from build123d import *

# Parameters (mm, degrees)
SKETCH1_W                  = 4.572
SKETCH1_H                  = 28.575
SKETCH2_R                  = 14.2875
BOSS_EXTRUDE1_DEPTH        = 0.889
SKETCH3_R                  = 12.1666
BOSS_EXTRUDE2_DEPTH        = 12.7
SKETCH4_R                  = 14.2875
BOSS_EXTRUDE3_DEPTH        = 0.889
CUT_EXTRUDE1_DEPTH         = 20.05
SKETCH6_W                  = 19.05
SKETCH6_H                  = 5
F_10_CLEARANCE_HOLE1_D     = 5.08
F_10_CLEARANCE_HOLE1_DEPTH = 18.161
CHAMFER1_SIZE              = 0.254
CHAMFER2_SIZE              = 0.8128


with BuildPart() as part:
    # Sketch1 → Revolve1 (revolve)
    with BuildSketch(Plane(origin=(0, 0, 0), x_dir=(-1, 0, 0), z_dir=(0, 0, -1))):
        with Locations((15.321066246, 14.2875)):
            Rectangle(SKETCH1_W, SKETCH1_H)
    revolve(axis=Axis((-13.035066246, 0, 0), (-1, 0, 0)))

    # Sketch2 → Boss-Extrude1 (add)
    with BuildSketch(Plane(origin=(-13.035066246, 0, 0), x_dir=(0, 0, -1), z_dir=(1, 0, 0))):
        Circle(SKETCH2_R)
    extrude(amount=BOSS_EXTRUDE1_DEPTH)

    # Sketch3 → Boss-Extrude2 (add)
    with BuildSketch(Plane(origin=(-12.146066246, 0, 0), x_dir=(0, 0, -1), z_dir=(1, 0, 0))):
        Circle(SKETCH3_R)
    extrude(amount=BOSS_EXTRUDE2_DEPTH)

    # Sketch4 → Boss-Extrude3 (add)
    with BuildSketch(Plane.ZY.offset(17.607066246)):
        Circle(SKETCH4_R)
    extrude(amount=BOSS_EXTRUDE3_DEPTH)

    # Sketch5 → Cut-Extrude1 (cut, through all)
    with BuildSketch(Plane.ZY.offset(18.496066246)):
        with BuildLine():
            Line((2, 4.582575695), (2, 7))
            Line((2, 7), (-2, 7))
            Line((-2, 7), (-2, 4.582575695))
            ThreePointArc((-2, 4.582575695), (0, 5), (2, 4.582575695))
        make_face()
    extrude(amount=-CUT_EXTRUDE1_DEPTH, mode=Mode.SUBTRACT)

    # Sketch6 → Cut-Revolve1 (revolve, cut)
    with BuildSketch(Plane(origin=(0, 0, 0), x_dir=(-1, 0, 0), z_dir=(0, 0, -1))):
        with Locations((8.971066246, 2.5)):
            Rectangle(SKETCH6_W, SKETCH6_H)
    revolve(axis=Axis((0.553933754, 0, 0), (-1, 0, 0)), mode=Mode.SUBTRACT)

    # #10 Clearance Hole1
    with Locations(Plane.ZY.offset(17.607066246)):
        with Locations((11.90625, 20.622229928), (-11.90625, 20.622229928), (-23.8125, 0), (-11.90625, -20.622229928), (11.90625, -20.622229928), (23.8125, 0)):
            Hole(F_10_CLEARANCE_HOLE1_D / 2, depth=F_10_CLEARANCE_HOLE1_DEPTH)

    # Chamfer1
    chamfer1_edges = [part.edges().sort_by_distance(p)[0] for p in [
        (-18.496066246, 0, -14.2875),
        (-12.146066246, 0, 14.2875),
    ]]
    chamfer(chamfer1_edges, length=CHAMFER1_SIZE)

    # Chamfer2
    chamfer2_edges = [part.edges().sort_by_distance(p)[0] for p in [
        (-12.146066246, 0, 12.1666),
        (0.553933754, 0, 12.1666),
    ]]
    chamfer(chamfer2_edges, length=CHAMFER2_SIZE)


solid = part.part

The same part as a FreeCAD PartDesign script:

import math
import FreeCAD as App
import Part
import Sketcher
from FreeCAD import Vector
Q = App.Units.Quantity


def edges_at(feature, points):
    """Names of the edges that pass closest to the given points."""
    edges = feature.Shape.Edges
    near = lambda p: min(range(len(edges)), key=lambda i: edges[i].distToShape(Part.Vertex(*p))[0])
    return sorted({f"Edge{near(p) + 1}" for p in points})

doc = App.newDocument("Part")
body = doc.addObject("PartDesign::Body", "Body")

# Sketch on XY plane
sketch1 = doc.addObject("Sketcher::SketchObject", "Sketch")
body.addObject(sketch1)
sketch1.AttachmentSupport = (doc.XY_Plane, [""])
sketch1.MapMode = "FlatFace"
sketch1.addGeometry([
    Part.LineSegment(Vector(-13, 28.6, 0), Vector(-13, 0, 0)),
    Part.LineSegment(Vector(-13, 0, 0), Vector(-17.6, 0, 0)),
    Part.LineSegment(Vector(-17.6, 0, 0), Vector(-17.6, 28.6, 0)),
    Part.LineSegment(Vector(-17.6, 28.6, 0), Vector(-13, 28.6, 0)),
], False)
sketch1.addConstraint([
    Sketcher.Constraint("Coincident", 0, 2, 1, 1),
    Sketcher.Constraint("Coincident", 1, 2, 2, 1),
    Sketcher.Constraint("Coincident", 2, 2, 3, 1),
    Sketcher.Constraint("Coincident", 3, 2, 0, 1),
    Sketcher.Constraint("Vertical", 0),
    Sketcher.Constraint("Horizontal", 1),
    Sketcher.Constraint("Vertical", 2),
    Sketcher.Constraint("Horizontal", 3),
    Sketcher.Constraint("PointOnObject", 0, 2, -1),
    Sketcher.Constraint("DistanceX", 1, 2, 1, 1, Q("0.18 in")),
    Sketcher.Constraint("DistanceY", 0, 2, 0, 1, Q("1.125 in")),
    Sketcher.Constraint("DistanceX", 0, 2, -1, 1, 13.035066),
])
revolution = doc.addObject("PartDesign::Revolution", "Revolution")
body.addObject(revolution)
revolution.Profile = sketch1
revolution.ReferenceAxis = (sketch1, ["H_Axis"])
revolution.Angle = 360

# Sketch on YZ plane
sketch2 = doc.addObject("Sketcher::SketchObject", "Sketch001")
body.addObject(sketch2)
sketch2.AttachmentSupport = (doc.YZ_Plane, [""])
sketch2.MapMode = "FlatFace"
sketch2.AttachmentOffset = App.Placement(Vector(0, 0, -13.035066), App.Rotation())
sketch2.addGeometry(Part.Circle(Vector(0, 0, 0), Vector(0, 0, 1), 14), False)
sketch2.addConstraint([
    Sketcher.Constraint("Coincident", 0, 3, -1, 1),
    Sketcher.Constraint("Diameter", 0, Q("1.125 in")),
])
pad1 = doc.addObject("PartDesign::Pad", "Pad")
body.addObject(pad1)
pad1.Profile = sketch2
pad1.Length = Q("0.035 in")

# Sketch on YZ plane
sketch3 = doc.addObject("Sketcher::SketchObject", "Sketch002")
body.addObject(sketch3)
sketch3.AttachmentSupport = (doc.YZ_Plane, [""])
sketch3.MapMode = "FlatFace"
sketch3.AttachmentOffset = App.Placement(Vector(0, 0, -12.146066), App.Rotation())
sketch3.addGeometry(Part.Circle(Vector(0, 0, 0), Vector(0, 0, 1), 12), False)
sketch3.addConstraint([
    Sketcher.Constraint("Coincident", 0, 3, -1, 1),
    Sketcher.Constraint("Diameter", 0, Q("0.958 in")),
])
pad2 = doc.addObject("PartDesign::Pad", "Pad001")
body.addObject(pad2)
pad2.Profile = sketch3
pad2.Length = Q("0.5 in")

# Sketch on YZ plane
sketch4 = doc.addObject("Sketcher::SketchObject", "Sketch003")
body.addObject(sketch4)
sketch4.AttachmentSupport = (doc.YZ_Plane, [""])
sketch4.MapMode = "FlatFace"
sketch4.AttachmentOffset = App.Placement(Vector(0, 0, -17.607066), App.Rotation())
sketch4.addGeometry(Part.Circle(Vector(0, 0, 0), Vector(0, 0, 1), 14), False)
sketch4.addConstraint([
    Sketcher.Constraint("Coincident", 0, 3, -1, 1),
    Sketcher.Constraint("Diameter", 0, Q("1.125 in")),
])
pad3 = doc.addObject("PartDesign::Pad", "Pad002")
body.addObject(pad3)
pad3.Profile = sketch4
pad3.Length = Q("0.035 in")
pad3.Reversed = True

# Sketch on YZ plane
sketch5 = doc.addObject("Sketcher::SketchObject", "Sketch004")
body.addObject(sketch5)
sketch5.AttachmentSupport = (doc.YZ_Plane, [""])
sketch5.MapMode = "FlatFace"
sketch5.AttachmentOffset = App.Placement(Vector(0, 0, -18.496066), App.Rotation())
sketch5.addGeometry([
    Part.LineSegment(Vector(4.6, 2, 0), Vector(7, 2, 0)),
    Part.LineSegment(Vector(7, 2, 0), Vector(7, -2, 0)),
    Part.LineSegment(Vector(7, -2, 0), Vector(4.6, -2, 0)),
    Part.ArcOfCircle(Part.Circle(Vector(0, 0, 0), Vector(0, 0, 1), 5), math.radians(-24), math.radians(24)),
], False)
sketch5.addConstraint([
    Sketcher.Constraint("Coincident", 0, 2, 1, 1),
    Sketcher.Constraint("Coincident", 1, 2, 2, 1),
    Sketcher.Constraint("Coincident", 2, 2, 3, 1),
    Sketcher.Constraint("Coincident", 3, 2, 0, 1),
    Sketcher.Constraint("Horizontal", 0),
    Sketcher.Constraint("Vertical", 1),
    Sketcher.Constraint("Horizontal", 2),
    Sketcher.Constraint("Coincident", 3, 3, -1, 1),
    Sketcher.Constraint("Vertical", 2, 2, 3, 2),
    Sketcher.Constraint("Radius", 3, 5.0),
    Sketcher.Constraint("DistanceY", 1, 2, 1, 1, 4.0),
    Sketcher.Constraint("DistanceX", -1, 1, 0, 2, 7.0),
])
pocket1 = doc.addObject("PartDesign::Pocket", "Pocket")
body.addObject(pocket1)
pocket1.Profile = sketch5
pocket1.Type = "ThroughAll"
pocket1.Reversed = True

# Sketch on XY plane
sketch6 = doc.addObject("Sketcher::SketchObject", "Sketch005")
body.addObject(sketch6)
sketch6.AttachmentSupport = (doc.XY_Plane, [""])
sketch6.MapMode = "FlatFace"
sketch6.addGeometry([
    Part.LineSegment(Vector(1, 5, 0), Vector(1, 0, 0)),
    Part.LineSegment(Vector(1, 0, 0), Vector(-18, 0, 0)),
    Part.LineSegment(Vector(-18, 0, 0), Vector(-18, 5, 0)),
    Part.LineSegment(Vector(-18, 5, 0), Vector(1, 5, 0)),
], False)
sketch6.addConstraint([
    Sketcher.Constraint("Coincident", 0, 2, 1, 1),
    Sketcher.Constraint("Coincident", 1, 2, 2, 1),
    Sketcher.Constraint("Coincident", 2, 2, 3, 1),
    Sketcher.Constraint("Coincident", 3, 2, 0, 1),
    Sketcher.Constraint("Vertical", 0),
    Sketcher.Constraint("Horizontal", 1),
    Sketcher.Constraint("Vertical", 2),
    Sketcher.Constraint("Horizontal", 3),
    Sketcher.Constraint("PointOnObject", 0, 2, -1),
    Sketcher.Constraint("DistanceX", 1, 2, 1, 1, Q("0.75 in")),
    Sketcher.Constraint("DistanceY", 0, 2, 0, 1, 5.0),
    Sketcher.Constraint("DistanceX", -1, 1, 0, 2, 0.553934),
])
groove = doc.addObject("PartDesign::Groove", "Groove")
body.addObject(groove)
groove.Profile = sketch6
groove.ReferenceAxis = (sketch6, ["H_Axis"])
groove.Angle = 360

# Sketch on YZ plane
sketch7 = doc.addObject("Sketcher::SketchObject", "Sketch006")
body.addObject(sketch7)
sketch7.AttachmentSupport = (doc.YZ_Plane, [""])
sketch7.MapMode = "FlatFace"
sketch7.AttachmentOffset = App.Placement(Vector(0, 0, -17.607066), App.Rotation())
sketch7.addGeometry([
    Part.Circle(Vector(20.6, 11.9, 0), Vector(0, 0, 1), 2.5),  # 0
    Part.Circle(Vector(20.6, -11.9, 0), Vector(0, 0, 1), 2.5),  # 1
    Part.Circle(Vector(0, -23.8, 0), Vector(0, 0, 1), 2.5),  # 2
    Part.Circle(Vector(-20.6, -11.9, 0), Vector(0, 0, 1), 2.5),  # 3
    Part.Circle(Vector(-20.6, 11.9, 0), Vector(0, 0, 1), 2.5),  # 4
    Part.Circle(Vector(0, 23.8, 0), Vector(0, 0, 1), 2.5),  # 5
], False)
sketch7.addConstraint([
    Sketcher.Constraint("Equal", 0, 1),
    Sketcher.Constraint("Equal", 1, 2),
    Sketcher.Constraint("Equal", 2, 3),
    Sketcher.Constraint("Equal", 3, 4),
    Sketcher.Constraint("Equal", 4, 5),
    Sketcher.Constraint("Symmetric", 0, 3, 3, 3, -1, 1),
    Sketcher.Constraint("Symmetric", 1, 3, 4, 3, -1, 1),
    Sketcher.Constraint("Symmetric", 2, 3, 5, 3, -1, 1),
    Sketcher.Constraint("Symmetric", 1, 3, 3, 3, -2),
    Sketcher.Constraint("PointOnObject", 2, 3, -2),
    Sketcher.Constraint("Diameter", 0, Q("0.2 in")),
    Sketcher.Constraint("DistanceY", -1, 1, 0, 3, Q("0.46875 in")),
    Sketcher.Constraint("DistanceY", 2, 3, -1, 1, Q("0.9375 in")),
    Sketcher.Constraint("DistanceX", -1, 1, 0, 3, 20.62223),
])
doc.recompute()
hole = doc.addObject("PartDesign::Hole", "Hole")
body.addObject(hole)
hole.Profile = sketch7
hole.ThreadType = "None"
hole.Diameter = Q("0.2 in")
hole.DepthType = "Dimension"
hole.Depth = Q("0.715 in")
hole.DrillPoint = "Flat"
hole.Reversed = True
doc.recompute()

chamfer = doc.addObject("PartDesign::Chamfer", "Chamfer")
body.addObject(chamfer)
chamfer.Base = (hole, edges_at(hole, [(-18.496, 0, -14.287), (-12.146, 0, 14.287)]))
chamfer.Size = Q("0.01 in")
doc.recompute()

chamfer2 = doc.addObject("PartDesign::Chamfer", "Chamfer001")
body.addObject(chamfer2)
chamfer2.Base = (chamfer, edges_at(chamfer, [(-12.146, 0, 12.167), (0.554, 0, 12.167)]))
chamfer2.Size = Q("0.032 in")

doc.recompute()
